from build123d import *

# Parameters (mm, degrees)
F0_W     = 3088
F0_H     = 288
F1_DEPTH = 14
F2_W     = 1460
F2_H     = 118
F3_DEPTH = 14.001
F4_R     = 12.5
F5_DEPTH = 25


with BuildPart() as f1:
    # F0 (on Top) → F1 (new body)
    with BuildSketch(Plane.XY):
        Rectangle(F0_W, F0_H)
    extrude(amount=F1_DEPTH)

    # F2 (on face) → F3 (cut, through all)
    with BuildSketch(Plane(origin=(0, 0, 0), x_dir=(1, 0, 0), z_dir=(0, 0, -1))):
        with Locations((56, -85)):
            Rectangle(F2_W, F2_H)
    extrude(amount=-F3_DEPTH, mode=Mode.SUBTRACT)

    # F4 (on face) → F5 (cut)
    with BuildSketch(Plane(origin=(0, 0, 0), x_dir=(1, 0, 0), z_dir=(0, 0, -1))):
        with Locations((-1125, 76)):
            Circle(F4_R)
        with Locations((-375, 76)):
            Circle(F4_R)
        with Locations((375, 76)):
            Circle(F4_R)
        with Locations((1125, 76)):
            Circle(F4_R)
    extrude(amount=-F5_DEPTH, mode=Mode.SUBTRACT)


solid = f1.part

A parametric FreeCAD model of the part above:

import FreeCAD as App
import Part
import Sketcher
from FreeCAD import Vector


def add_polygon(sketch, points):
    """Adds a closed chain of lines whose ends are joined by coincident constraints."""
    first, n = sketch.GeometryCount, len(points)
    for a, b in zip(points, points[1:] + points[:1]):
        sketch.addGeometry(Part.LineSegment(App.Vector(*a, 0), App.Vector(*b, 0)), False)
    for i in range(n):
        sketch.addConstraint(Sketcher.Constraint("Coincident", first + i, 2, first + (i + 1) % n, 1))

doc = App.newDocument("Part")
body = doc.addObject("PartDesign::Body", "Body")

# Sketch on XY plane
sketch1 = body.newObject("Sketcher::SketchObject", "Sketch")
sketch1.AttachmentSupport = (doc.getObject("XY_Plane"), [""])
sketch1.MapMode = "FlatFace"
add_polygon(sketch1, [(-1544, 144), (-1544, -144), (1544, -144), (1544, 144)])  # lines 0-3
sketch1.addConstraint([
    Sketcher.Constraint("Vertical", 0),
    Sketcher.Constraint("Horizontal", 1),
    Sketcher.Constraint("Vertical", 2),
    Sketcher.Constraint("Horizontal", 3),
    Sketcher.Constraint("Symmetric", 0, 2, 2, 2, -1, 1),
    Sketcher.Constraint("DistanceX", 1, 1, 1, 2, 3088.0),
    Sketcher.Constraint("DistanceY", 0, 2, 0, 1, 288.0),
])
pad1 = body.newObject("PartDesign::Pad", "Pad")
pad1.Profile = sketch1
pad1.Length = 14

# Sketch on XY plane
sketch2 = body.newObject("Sketcher::SketchObject", "Sketch001")
sketch2.AttachmentSupport = (doc.getObject("XY_Plane"), [""])
sketch2.MapMode = "FlatFace"
add_polygon(sketch2, [(-674, 26), (-674, 144), (786, 144), (786, 26)])  # lines 0-3
sketch2.addConstraint([
    Sketcher.Constraint("Vertical", 0),
    Sketcher.Constraint("Horizontal", 1),
    Sketcher.Constraint("Vertical", 2),
    Sketcher.Constraint("Horizontal", 3),
    Sketcher.Constraint("DistanceX", 1, 1, 1, 2, 1460.0),
    Sketcher.Constraint("DistanceY", 0, 1, 0, 2, 118.0),
    Sketcher.Constraint("DistanceX", 0, 2, -1, 1, 674.0),
    Sketcher.Constraint("DistanceY", -1, 1, 0, 2, 144.0),
])
pocket1 = body.newObject("PartDesign::Pocket", "Pocket")
pocket1.Profile = sketch2
pocket1.Type = "ThroughAll"
pocket1.Reversed = True

# Sketch on XY plane
sketch3 = body.newObject("Sketcher::SketchObject", "Sketch002")
sketch3.AttachmentSupport = (doc.getObject("XY_Plane"), [""])
sketch3.MapMode = "FlatFace"
sketch3.addGeometry([
    Part.Circle(Vector(-1125, -76, 0), Vector(0, 0, 1), 12.5),
    Part.Circle(Vector(-375, -76, 0), Vector(0, 0, 1), 12.5),
    Part.Circle(Vector(375, -76, 0), Vector(0, 0, 1), 12.5),
    Part.Circle(Vector(1125, -76, 0), Vector(0, 0, 1), 12.5),
], False)
sketch3.addConstraint([
    Sketcher.Constraint("Equal", 0, 1),
    Sketcher.Constraint("Equal", 1, 2),
    Sketcher.Constraint("Equal", 2, 3),
    Sketcher.Constraint("Symmetric", 1, 3, 2, 3, -2),
    Sketcher.Constraint("Symmetric", 0, 3, 3, 3, -2),
    Sketcher.Constraint("Horizontal", 0, 3, 1, 3),
    Sketcher.Constraint("Diameter", 0, 25.0),
    Sketcher.Constraint("DistanceX", 0, 3, -1, 1, 1125.0),
    Sketcher.Constraint("DistanceY", 0, 3, -1, 1, 76.0),
    Sketcher.Constraint("DistanceX", 1, 3, -1, 1, 375.0),
])
pocket2 = body.newObject("PartDesign::Pocket", "Pocket001")
pocket2.Profile = sketch3
pocket2.Length = 25
pocket2.Reversed = True

doc.recompute()
